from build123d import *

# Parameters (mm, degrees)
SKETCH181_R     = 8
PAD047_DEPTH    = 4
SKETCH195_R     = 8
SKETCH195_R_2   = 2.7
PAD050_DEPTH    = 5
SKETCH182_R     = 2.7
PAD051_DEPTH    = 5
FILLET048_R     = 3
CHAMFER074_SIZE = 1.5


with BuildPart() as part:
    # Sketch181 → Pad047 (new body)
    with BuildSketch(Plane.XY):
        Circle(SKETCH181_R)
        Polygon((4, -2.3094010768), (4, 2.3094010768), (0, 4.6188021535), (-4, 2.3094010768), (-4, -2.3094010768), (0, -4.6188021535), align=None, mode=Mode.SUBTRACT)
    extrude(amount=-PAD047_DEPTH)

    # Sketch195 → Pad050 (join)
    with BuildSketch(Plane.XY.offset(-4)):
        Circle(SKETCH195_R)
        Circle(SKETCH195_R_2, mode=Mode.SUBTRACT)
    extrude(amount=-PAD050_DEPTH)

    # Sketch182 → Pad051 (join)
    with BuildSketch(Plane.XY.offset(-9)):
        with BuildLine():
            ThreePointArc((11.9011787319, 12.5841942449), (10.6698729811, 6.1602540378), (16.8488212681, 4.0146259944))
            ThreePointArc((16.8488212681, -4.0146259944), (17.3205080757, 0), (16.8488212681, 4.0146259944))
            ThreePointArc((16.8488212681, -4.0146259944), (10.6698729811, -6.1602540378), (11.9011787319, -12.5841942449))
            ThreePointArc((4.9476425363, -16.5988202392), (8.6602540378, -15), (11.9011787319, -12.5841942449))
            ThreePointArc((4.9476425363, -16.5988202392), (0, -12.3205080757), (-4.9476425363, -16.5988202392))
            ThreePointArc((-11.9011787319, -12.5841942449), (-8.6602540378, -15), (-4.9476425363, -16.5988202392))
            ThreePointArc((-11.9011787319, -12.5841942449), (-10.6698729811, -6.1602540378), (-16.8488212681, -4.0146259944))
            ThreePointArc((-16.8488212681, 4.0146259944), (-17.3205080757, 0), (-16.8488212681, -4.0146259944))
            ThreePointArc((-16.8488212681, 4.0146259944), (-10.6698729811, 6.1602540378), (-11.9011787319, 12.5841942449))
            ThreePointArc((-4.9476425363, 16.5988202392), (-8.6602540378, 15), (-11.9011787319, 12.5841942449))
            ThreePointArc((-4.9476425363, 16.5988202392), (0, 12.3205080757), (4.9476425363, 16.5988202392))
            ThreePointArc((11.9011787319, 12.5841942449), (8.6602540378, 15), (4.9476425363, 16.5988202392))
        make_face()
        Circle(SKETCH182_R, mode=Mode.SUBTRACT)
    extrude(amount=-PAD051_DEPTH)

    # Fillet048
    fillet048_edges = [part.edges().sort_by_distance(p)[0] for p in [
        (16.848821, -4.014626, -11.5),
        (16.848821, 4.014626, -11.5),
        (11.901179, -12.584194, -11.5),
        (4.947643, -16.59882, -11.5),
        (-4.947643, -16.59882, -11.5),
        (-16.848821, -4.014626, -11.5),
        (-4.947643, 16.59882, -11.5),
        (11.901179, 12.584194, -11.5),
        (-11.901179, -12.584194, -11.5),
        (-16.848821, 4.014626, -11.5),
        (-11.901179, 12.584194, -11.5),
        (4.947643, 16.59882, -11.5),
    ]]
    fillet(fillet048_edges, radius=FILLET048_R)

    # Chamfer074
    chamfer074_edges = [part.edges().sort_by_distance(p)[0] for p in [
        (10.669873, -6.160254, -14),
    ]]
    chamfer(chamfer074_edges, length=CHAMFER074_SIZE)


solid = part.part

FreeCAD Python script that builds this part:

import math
import FreeCAD as App
import Part
import Sketcher
Q = App.Units.Quantity


def edges_at(feature, points):
    """Names of the edges that pass closest to the given points."""
    edges = feature.Shape.Edges
    near = lambda p: min(range(len(edges)), key=lambda i: edges[i].distToShape(Part.Vertex(*p))[0])
    return sorted({f"Edge{near(p) + 1}" for p in points})

doc = App.newDocument("Part")
body = doc.addObject("PartDesign::Body", "Body")

sketch1 = body.newObject("Sketcher::SketchObject", "Sketch")
sketch1.AttachmentSupport = (doc.getObject("XY_Plane"), [""])
sketch1.MapMode = "FlatFace"
sketch1.addGeometry(Part.Circle(App.Vector(0, 0, 0), App.Vector(0, 0, 1), 8), False)
sketch1.addGeometry(Part.LineSegment(App.Vector(4, 2.3, 0), App.Vector(4, -2.3, 0)), False)
sketch1.addGeometry(Part.LineSegment(App.Vector(4, -2.3, 0), App.Vector(0, -4.6, 0)), False)
sketch1.addGeometry(Part.LineSegment(App.Vector(0, -4.6, 0), App.Vector(-4, -2.3, 0)), False)
sketch1.addGeometry(Part.LineSegment(App.Vector(-4, -2.3, 0), App.Vector(-4, 2.3, 0)), False)
sketch1.addGeometry(Part.LineSegment(App.Vector(-4, 2.3, 0), App.Vector(0, 4.6, 0)), False)
sketch1.addGeometry(Part.LineSegment(App.Vector(0, 4.6, 0), App.Vector(4, 2.3, 0)), False)
sketch1.addConstraint(Sketcher.Constraint("Coincident", 1, 2, 2, 1))
sketch1.addConstraint(Sketcher.Constraint("Coincident", 2, 2, 3, 1))
sketch1.addConstraint(Sketcher.Constraint("Coincident", 3, 2, 4, 1))
sketch1.addConstraint(Sketcher.Constraint("Coincident", 4, 2, 5, 1))
sketch1.addConstraint(Sketcher.Constraint("Coincident", 5, 2, 6, 1))
sketch1.addConstraint(Sketcher.Constraint("Coincident", 6, 2, 1, 1))
sketch1.addConstraint(Sketcher.Constraint("Vertical", 1))
sketch1.addConstraint(Sketcher.Constraint("Vertical", 4))
sketch1.addConstraint(Sketcher.Constraint("Coincident", 0, 3, -1, 1))
sketch1.addConstraint(Sketcher.Constraint("Symmetric", 1, 2, 4, 2, -1, 1))
sketch1.addConstraint(Sketcher.Constraint("Symmetric", 2, 2, 5, 2, -1, 1))
sketch1.addConstraint(Sketcher.Constraint("PointOnObject", 2, 2, -2))
sketch1.addConstraint(Sketcher.Constraint("Parallel", 3, 6))
sketch1.addConstraint(Sketcher.Constraint("Horizontal", 1, 2, 3, 2))
sketch1.addConstraint(Sketcher.Constraint("Diameter", 0, Q("16 mm")))
sketch1.addConstraint(Sketcher.Constraint("Angle", 2, Q("-150 deg")))
sketch1.addConstraint(Sketcher.Constraint("DistanceX", -1, 1, 1, 2, Q("4 mm")))
sketch1.addConstraint(Sketcher.Constraint("DistanceY", 1, 2, -1, 1, Q("2.309401 mm")))
pad1 = body.newObject("PartDesign::Pad", "Pad")
pad1.Profile = sketch1
pad1.Length = 4
pad1.Reversed = True

sketch2 = body.newObject("Sketcher::SketchObject", "Sketch001")
sketch2.AttachmentSupport = (doc.getObject("XY_Plane"), [""])
sketch2.MapMode = "FlatFace"
sketch2.AttachmentOffset = App.Placement(App.Vector(0, 0, -4), App.Rotation())
sketch2.addGeometry(Part.Circle(App.Vector(0, 0, 0), App.Vector(0, 0, 1), 8), False)
sketch2.addGeometry(Part.Circle(App.Vector(0, 0, 0), App.Vector(0, 0, 1), 2.7), False)
sketch2.addConstraint(Sketcher.Constraint("Coincident", 0, 3, -1, 1))
sketch2.addConstraint(Sketcher.Constraint("Coincident", 1, 3, -1, 1))
sketch2.addConstraint(Sketcher.Constraint("Diameter", 0, Q("16 mm")))
sketch2.addConstraint(Sketcher.Constraint("Diameter", 1, Q("5.4 mm")))
pad2 = body.newObject("PartDesign::Pad", "Pad001")
pad2.Profile = sketch2
pad2.Length = 5
pad2.Reversed = True

sketch3 = body.newObject("Sketcher::SketchObject", "Sketch002")
sketch3.AttachmentSupport = (doc.getObject("XY_Plane"), [""])
sketch3.MapMode = "FlatFace"
sketch3.AttachmentOffset = App.Placement(App.Vector(0, 0, -9), App.Rotation())
sketch3.addGeometry(Part.ArcOfCircle(Part.Circle(App.Vector(15, 8.7, 0), App.Vector(0, 0, 1), 5), math.radians(128), math.radians(292)), False)
sketch3.addGeometry(Part.ArcOfCircle(Part.Circle(App.Vector(0, 0, 0), App.Vector(0, 0, 1), 17.3), math.radians(47), math.radians(73)), False)
sketch3.addGeometry(Part.ArcOfCircle(Part.Circle(App.Vector(0, 17.3, 0), App.Vector(0, 0, 1), 5), math.radians(-172), math.radians(-8)), False)
sketch3.addGeometry(Part.ArcOfCircle(Part.Circle(App.Vector(0, 0, 0), App.Vector(0, 0, 1), 17.3), math.radians(107), math.radians(133)), False)
sketch3.addGeometry(Part.ArcOfCircle(Part.Circle(App.Vector(-15, 8.7, 0), App.Vector(0, 0, 1), 5), math.radians(-112), math.radians(52)), False)
sketch3.addGeometry(Part.ArcOfCircle(Part.Circle(App.Vector(0, 0, 0), App.Vector(0, 0, 1), 17.3), math.radians(167), math.radians(193)), False)
sketch3.addGeometry(Part.ArcOfCircle(Part.Circle(App.Vector(-15, -8.7, 0), App.Vector(0, 0, 1), 5), math.radians(-52), math.radians(112)), False)
sketch3.addGeometry(Part.ArcOfCircle(Part.Circle(App.Vector(0, 0, 0), App.Vector(0, 0, 1), 17.3), math.radians(-133), math.radians(-107)), False)
sketch3.addGeometry(Part.ArcOfCircle(Part.Circle(App.Vector(0, -17.3, 0), App.Vector(0, 0, 1), 5), math.radians(8), math.radians(172)), False)
sketch3.addGeometry(Part.ArcOfCircle(Part.Circle(App.Vector(0, 0, 0), App.Vector(0, 0, 1), 17.3), math.radians(-73), math.radians(-47)), False)
sketch3.addGeometry(Part.ArcOfCircle(Part.Circle(App.Vector(15, -8.7, 0), App.Vector(0, 0, 1), 5), math.radians(68), math.radians(232)), False)
sketch3.addGeometry(Part.ArcOfCircle(Part.Circle(App.Vector(0, 0, 0), App.Vector(0, 0, 1), 17.3), math.radians(-13), math.radians(13)), False)
sketch3.addGeometry(Part.Circle(App.Vector(0, 0, 0), App.Vector(0, 0, 1), 2.7), False)
sketch3.addConstraint(Sketcher.Constraint("Coincident", 0, 1, 1, 1))
sketch3.addConstraint(Sketcher.Constraint("Coincident", 1, 2, 2, 2))
sketch3.addConstraint(Sketcher.Constraint("Coincident", 2, 1, 3, 1))
sketch3.addConstraint(Sketcher.Constraint("Coincident", 3, 2, 4, 2))
sketch3.addConstraint(Sketcher.Constraint("Coincident", 4, 1, 5, 1))
sketch3.addConstraint(Sketcher.Constraint("Coincident", 5, 2, 6, 2))
sketch3.addConstraint(Sketcher.Constraint("Coincident", 6, 1, 7, 1))
sketch3.addConstraint(Sketcher.Constraint("Coincident", 7, 2, 8, 2))
sketch3.addConstraint(Sketcher.Constraint("Coincident", 8, 1, 9, 1))
sketch3.addConstraint(Sketcher.Constraint("Coincident", 9, 2, 10, 2))
sketch3.addConstraint(Sketcher.Constraint("Coincident", 10, 1, 11, 1))
sketch3.addConstraint(Sketcher.Constraint("Coincident", 11, 2, 0, 2))
sketch3.addConstraint(Sketcher.Constraint("Coincident", 1, 3, -1, 1))
sketch3.addConstraint(Sketcher.Constraint("Coincident", 3, 3, -1, 1))
sketch3.addConstraint(Sketcher.Constraint("Coincident", 5, 3, -1, 1))
sketch3.addConstraint(Sketcher.Constraint("Coincident", 7, 3, -1, 1))
sketch3.addConstraint(Sketcher.Constraint("Coincident", 9, 3, -1, 1))
sketch3.addConstraint(Sketcher.Constraint("Coincident", 11, 3, -1, 1))
sketch3.addConstraint(Sketcher.Constraint("Coincident", 12, 3, -1, 1))
sketch3.addConstraint(Sketcher.Constraint("Equal", 0, 2))
sketch3.addConstraint(Sketcher.Constraint("Equal", 1, 3))
sketch3.addConstraint(Sketcher.Constraint("Equal", 2, 4))
sketch3.addConstraint(Sketcher.Constraint("Equal", 3, 5))
sketch3.addConstraint(Sketcher.Constraint("Equal", 4, 6))
sketch3.addConstraint(Sketcher.Constraint("Equal", 5, 7))
sketch3.addConstraint(Sketcher.Constraint("Equal", 6, 8))
sketch3.addConstraint(Sketcher.Constraint("Equal", 7, 9))
sketch3.addConstraint(Sketcher.Constraint("Equal", 8, 10))
sketch3.addConstraint(Sketcher.Constraint("Equal", 9, 11))
sketch3.addConstraint(Sketcher.Constraint("Symmetric", 0, 3, 6, 3, -1, 1))
sketch3.addConstraint(Sketcher.Constraint("Symmetric", 2, 3, 8, 3, -1, 1))
sketch3.addConstraint(Sketcher.Constraint("Symmetric", 4, 3, 10, 3, -1, 1))
sketch3.addConstraint(Sketcher.Constraint("Symmetric", 0, 3, 4, 3, -2))
sketch3.addConstraint(Sketcher.Constraint("PointOnObject", 2, 3, -2))
sketch3.addConstraint(Sketcher.Constraint("Radius", 0, Q("5 mm")))
sketch3.addConstraint(Sketcher.Constraint("Diameter", 12, Q("5.4 mm")))
sketch3.addConstraint(Sketcher.Constraint("DistanceX", -1, 1, 0, 3, Q("15 mm")))
sketch3.addConstraint(Sketcher.Constraint("Radius", 1, Q("17.320508 mm")))
sketch3.addConstraint(Sketcher.Constraint("DistanceY", -1, 1, 2, 3, Q("17.320508 mm")))
sketch3.addConstraint(Sketcher.Constraint("DistanceX", -1, 1, 0, 1, Q("11.901179 mm")))
pad3 = body.newObject("PartDesign::Pad", "Pad002")
pad3.Profile = sketch3
pad3.Length = 5
pad3.Reversed = True
doc.recompute()

fillet = body.newObject("PartDesign::Fillet", "Fillet")
fillet.Base = (pad3, edges_at(pad3, [
    (16.849, -4.015, -11.5),
    (16.849, 4.015, -11.5),
    (11.901, -12.584, -11.5),
    (4.948, -16.599, -11.5),
    (-4.948, -16.599, -11.5),
    (-16.849, -4.015, -11.5),
    (-4.948, 16.599, -11.5),
    (11.901, 12.584, -11.5),
    (-11.901, -12.584, -11.5),
    (-16.849, 4.015, -11.5),
    (-11.901, 12.584, -11.5),
    (4.948, 16.599, -11.5),
]))
fillet.Radius = 3
doc.recompute()

chamfer = body.newObject("PartDesign::Chamfer", "Chamfer")
chamfer.Base = (fillet, edges_at(fillet, [(10.67, -6.16, -14)]))
chamfer.Size = 1.5

doc.recompute()
